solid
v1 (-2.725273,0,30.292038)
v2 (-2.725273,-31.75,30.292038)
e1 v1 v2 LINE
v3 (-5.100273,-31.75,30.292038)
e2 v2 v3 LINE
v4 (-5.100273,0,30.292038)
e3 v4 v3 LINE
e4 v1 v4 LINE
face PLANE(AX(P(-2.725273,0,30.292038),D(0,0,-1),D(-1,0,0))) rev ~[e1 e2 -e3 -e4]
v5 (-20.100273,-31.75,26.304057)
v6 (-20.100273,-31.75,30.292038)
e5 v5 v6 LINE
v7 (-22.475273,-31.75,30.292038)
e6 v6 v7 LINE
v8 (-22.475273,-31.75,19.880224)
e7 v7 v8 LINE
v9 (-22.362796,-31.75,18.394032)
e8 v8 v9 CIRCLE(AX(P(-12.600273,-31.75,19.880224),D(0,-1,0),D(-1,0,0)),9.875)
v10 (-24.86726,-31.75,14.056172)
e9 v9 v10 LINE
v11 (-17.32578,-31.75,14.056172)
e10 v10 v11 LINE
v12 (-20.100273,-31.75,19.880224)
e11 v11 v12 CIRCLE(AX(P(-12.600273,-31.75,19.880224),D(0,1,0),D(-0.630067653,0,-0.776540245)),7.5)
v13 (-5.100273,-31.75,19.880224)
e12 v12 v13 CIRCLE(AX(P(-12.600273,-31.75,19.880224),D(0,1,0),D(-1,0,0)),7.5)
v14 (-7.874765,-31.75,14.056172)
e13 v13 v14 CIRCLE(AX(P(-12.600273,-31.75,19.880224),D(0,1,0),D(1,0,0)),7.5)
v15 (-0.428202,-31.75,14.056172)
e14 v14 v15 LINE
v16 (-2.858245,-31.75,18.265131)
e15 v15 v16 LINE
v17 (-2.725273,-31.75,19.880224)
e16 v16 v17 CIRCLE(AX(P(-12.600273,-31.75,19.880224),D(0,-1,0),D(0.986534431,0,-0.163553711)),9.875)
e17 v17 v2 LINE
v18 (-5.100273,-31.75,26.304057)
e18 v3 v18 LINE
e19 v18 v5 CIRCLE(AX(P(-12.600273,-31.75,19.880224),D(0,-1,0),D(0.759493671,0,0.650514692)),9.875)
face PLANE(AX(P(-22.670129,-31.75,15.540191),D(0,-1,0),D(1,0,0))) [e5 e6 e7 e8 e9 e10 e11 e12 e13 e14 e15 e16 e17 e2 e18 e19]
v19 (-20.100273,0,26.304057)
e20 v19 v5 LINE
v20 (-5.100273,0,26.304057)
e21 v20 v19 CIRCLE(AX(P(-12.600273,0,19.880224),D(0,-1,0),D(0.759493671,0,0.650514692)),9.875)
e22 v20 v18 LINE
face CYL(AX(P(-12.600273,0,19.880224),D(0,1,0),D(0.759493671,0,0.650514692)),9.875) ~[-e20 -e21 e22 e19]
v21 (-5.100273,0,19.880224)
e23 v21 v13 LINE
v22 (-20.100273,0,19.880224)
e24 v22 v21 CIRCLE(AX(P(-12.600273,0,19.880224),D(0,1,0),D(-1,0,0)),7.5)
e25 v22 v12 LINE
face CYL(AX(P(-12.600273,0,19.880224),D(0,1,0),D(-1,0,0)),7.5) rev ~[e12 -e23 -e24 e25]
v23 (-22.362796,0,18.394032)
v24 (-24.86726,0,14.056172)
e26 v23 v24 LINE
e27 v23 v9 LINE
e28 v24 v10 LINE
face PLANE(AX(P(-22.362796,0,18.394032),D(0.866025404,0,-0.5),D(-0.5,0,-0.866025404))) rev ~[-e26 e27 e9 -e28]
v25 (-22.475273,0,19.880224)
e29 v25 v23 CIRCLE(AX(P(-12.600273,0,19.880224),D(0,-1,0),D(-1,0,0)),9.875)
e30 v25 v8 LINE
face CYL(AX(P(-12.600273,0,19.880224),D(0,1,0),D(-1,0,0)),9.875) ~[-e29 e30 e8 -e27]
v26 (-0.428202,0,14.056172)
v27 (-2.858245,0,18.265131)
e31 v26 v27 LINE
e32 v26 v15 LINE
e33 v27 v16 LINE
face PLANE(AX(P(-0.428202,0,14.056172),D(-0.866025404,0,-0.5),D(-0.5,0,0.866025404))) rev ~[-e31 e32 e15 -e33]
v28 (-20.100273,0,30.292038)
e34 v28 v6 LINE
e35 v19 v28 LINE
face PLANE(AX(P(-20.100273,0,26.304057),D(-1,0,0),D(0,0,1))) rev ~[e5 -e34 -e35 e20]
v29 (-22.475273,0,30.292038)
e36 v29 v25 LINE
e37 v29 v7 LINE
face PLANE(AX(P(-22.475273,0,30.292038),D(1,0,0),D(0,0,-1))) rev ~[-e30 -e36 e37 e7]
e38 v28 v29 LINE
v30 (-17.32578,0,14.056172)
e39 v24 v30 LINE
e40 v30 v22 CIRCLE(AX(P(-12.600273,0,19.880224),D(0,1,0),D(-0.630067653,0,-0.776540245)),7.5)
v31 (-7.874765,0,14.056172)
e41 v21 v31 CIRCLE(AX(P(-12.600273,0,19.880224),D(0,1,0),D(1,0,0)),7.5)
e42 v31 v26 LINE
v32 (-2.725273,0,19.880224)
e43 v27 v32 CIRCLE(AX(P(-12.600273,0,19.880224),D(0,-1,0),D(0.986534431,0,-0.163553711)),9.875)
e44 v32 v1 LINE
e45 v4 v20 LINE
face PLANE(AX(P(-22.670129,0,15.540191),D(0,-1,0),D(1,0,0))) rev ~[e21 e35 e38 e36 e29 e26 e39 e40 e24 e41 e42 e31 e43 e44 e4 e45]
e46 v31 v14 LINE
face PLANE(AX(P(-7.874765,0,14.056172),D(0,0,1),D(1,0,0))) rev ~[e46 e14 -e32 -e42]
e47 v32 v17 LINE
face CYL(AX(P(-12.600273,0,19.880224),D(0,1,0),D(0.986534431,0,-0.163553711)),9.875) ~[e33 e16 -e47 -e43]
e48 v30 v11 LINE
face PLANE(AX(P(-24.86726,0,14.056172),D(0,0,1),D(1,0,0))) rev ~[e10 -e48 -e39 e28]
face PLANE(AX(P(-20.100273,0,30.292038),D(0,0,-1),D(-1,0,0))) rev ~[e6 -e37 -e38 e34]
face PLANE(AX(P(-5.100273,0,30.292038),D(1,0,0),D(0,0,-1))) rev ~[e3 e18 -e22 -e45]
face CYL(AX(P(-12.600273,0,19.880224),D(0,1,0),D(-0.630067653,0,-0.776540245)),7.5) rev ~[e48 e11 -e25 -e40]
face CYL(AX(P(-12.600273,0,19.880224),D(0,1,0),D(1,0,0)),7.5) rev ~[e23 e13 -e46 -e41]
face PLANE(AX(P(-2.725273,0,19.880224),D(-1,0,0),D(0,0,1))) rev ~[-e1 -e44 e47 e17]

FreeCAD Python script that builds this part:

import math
import FreeCAD as App
import Part
import Sketcher
from FreeCAD import Vector
Q = App.Units.Quantity

doc = App.newDocument("Part")
body = doc.addObject("PartDesign::Body", "Body")

sketch1 = doc.addObject("Sketcher::SketchObject", "Sketch")
body.addObject(sketch1)
sketch1.AttachmentSupport = (doc.XZ_Plane, [""])
sketch1.MapMode = "FlatFace"
sketch1.addGeometry([
    Part.LineSegment(Vector(-24.9, 14.1, 0), Vector(-17.3, 14.1, 0)),
    Part.ArcOfCircle(Part.Circle(Vector(-12.6, 19.9, 0), Vector(0, 0, 1), 7.5), math.radians(180), math.radians(231)),
    Part.ArcOfCircle(Part.Circle(Vector(-12.6, 19.9, 0), Vector(0, 0, 1), 7.5), math.radians(0), math.radians(180)),
    Part.ArcOfCircle(Part.Circle(Vector(-12.6, 19.9, 0), Vector(0, 0, 1), 7.5), math.radians(-51), math.radians(0)),
    Part.LineSegment(Vector(-7.9, 14.1, 0), Vector(-0.4, 14.1, 0)),
    Part.LineSegment(Vector(-0.4, 14.1, 0), Vector(-2.9, 18.3, 0)),
    Part.ArcOfCircle(Part.Circle(Vector(-12.6, 19.9, 0), Vector(0, 0, 1), 9.9), math.radians(-9.41), math.radians(0)),
    Part.LineSegment(Vector(-2.7, 19.9, 0), Vector(-2.7, 30.3, 0)),
    Part.LineSegment(Vector(-2.7, 30.3, 0), Vector(-5.1, 30.3, 0)),
    Part.LineSegment(Vector(-5.1, 30.3, 0), Vector(-5.1, 26.3, 0)),
    Part.ArcOfCircle(Part.Circle(Vector(-12.6, 19.9, 0), Vector(0, 0, 1), 9.9), math.radians(41), math.radians(139)),
    Part.LineSegment(Vector(-20.1, 26.3, 0), Vector(-20.1, 30.3, 0)),
    Part.LineSegment(Vector(-20.1, 30.3, 0), Vector(-22.5, 30.3, 0)),
    Part.LineSegment(Vector(-22.5, 30.3, 0), Vector(-22.5, 19.9, 0)),
    Part.ArcOfCircle(Part.Circle(Vector(-12.6, 19.9, 0), Vector(0, 0, 1), 9.9), math.radians(-180), math.radians(-171.34)),
    Part.LineSegment(Vector(-22.4, 18.4, 0), Vector(-24.9, 14.1, 0)),
], False)
sketch1.addConstraint([
    Sketcher.Constraint("Coincident", 0, 2, 1, 2),
    Sketcher.Constraint("Tangent", 1, 1, 2, 2),
    Sketcher.Constraint("Tangent", 2, 1, 3, 2),
    Sketcher.Constraint("Coincident", 3, 1, 4, 1),
    Sketcher.Constraint("Coincident", 4, 2, 5, 1),
    Sketcher.Constraint("Coincident", 5, 2, 6, 1),
    Sketcher.Constraint("Tangent", 6, 2, 7, 1),
    Sketcher.Constraint("Coincident", 7, 2, 8, 1),
    Sketcher.Constraint("Coincident", 8, 2, 9, 1),
    Sketcher.Constraint("Coincident", 9, 2, 10, 1),
    Sketcher.Constraint("Coincident", 10, 2, 11, 1),
    Sketcher.Constraint("Coincident", 11, 2, 12, 1),
    Sketcher.Constraint("Coincident", 12, 2, 13, 1),
    Sketcher.Constraint("Tangent", 13, 2, 14, 1),
    Sketcher.Constraint("Coincident", 14, 2, 15, 1),
    Sketcher.Constraint("Coincident", 15, 2, 0, 1),
    Sketcher.Constraint("Horizontal", 0),
    Sketcher.Constraint("Horizontal", 4),
    Sketcher.Constraint("Vertical", 7),
    Sketcher.Constraint("Horizontal", 8),
    Sketcher.Constraint("Vertical", 9),
    Sketcher.Constraint("Vertical", 11),
    Sketcher.Constraint("Horizontal", 12),
    Sketcher.Constraint("Vertical", 13),
    Sketcher.Constraint("Coincident", 6, 3, 1, 3),
    Sketcher.Constraint("Coincident", 10, 3, 1, 3),
    Sketcher.Constraint("Coincident", 14, 3, 1, 3),
    Sketcher.Constraint("Equal", 1, 2),
    Sketcher.Constraint("Equal", 2, 3),
    Sketcher.Constraint("Equal", 6, 10),
    Sketcher.Constraint("Equal", 10, 14),
    Sketcher.Constraint("Horizontal", 14, 3, 1, 1),
    Sketcher.Constraint("Horizontal", 1, 1, 2, 1),
    Sketcher.Constraint("Horizontal", 0, 2, 3, 1),
    Sketcher.Constraint("Horizontal", 9, 2, 10, 2),
    Sketcher.Constraint("Horizontal", 8, 2, 11, 2),
    Sketcher.Constraint("Vertical", 2, 1, 8, 2),
    Sketcher.Constraint("Radius", 1, 7.5),
    Sketcher.Constraint("Angle", 5, Q("120 deg")),
    Sketcher.Constraint("Angle", 15, Q("-120 deg")),
    Sketcher.Constraint("Radius", 6, 9.875),
    Sketcher.Constraint("DistanceX", 0, 1, 0, 2, 7.54148),
    Sketcher.Constraint("DistanceY", 9, 2, 9, 1, 3.987982),
    Sketcher.Constraint("DistanceX", 4, 2, -1, 1, 0.428202),
    Sketcher.Constraint("Distance", 15, 5.008928),
    Sketcher.Constraint("DistanceX", 4, 1, 4, 2, 7.446564),
    Sketcher.Constraint("DistanceY", -1, 1, 5, 2, 18.265131),
])
pad1 = doc.addObject("PartDesign::Pad", "Pad")
body.addObject(pad1)
pad1.Profile = sketch1
pad1.Length = 31.75

doc.recompute()
